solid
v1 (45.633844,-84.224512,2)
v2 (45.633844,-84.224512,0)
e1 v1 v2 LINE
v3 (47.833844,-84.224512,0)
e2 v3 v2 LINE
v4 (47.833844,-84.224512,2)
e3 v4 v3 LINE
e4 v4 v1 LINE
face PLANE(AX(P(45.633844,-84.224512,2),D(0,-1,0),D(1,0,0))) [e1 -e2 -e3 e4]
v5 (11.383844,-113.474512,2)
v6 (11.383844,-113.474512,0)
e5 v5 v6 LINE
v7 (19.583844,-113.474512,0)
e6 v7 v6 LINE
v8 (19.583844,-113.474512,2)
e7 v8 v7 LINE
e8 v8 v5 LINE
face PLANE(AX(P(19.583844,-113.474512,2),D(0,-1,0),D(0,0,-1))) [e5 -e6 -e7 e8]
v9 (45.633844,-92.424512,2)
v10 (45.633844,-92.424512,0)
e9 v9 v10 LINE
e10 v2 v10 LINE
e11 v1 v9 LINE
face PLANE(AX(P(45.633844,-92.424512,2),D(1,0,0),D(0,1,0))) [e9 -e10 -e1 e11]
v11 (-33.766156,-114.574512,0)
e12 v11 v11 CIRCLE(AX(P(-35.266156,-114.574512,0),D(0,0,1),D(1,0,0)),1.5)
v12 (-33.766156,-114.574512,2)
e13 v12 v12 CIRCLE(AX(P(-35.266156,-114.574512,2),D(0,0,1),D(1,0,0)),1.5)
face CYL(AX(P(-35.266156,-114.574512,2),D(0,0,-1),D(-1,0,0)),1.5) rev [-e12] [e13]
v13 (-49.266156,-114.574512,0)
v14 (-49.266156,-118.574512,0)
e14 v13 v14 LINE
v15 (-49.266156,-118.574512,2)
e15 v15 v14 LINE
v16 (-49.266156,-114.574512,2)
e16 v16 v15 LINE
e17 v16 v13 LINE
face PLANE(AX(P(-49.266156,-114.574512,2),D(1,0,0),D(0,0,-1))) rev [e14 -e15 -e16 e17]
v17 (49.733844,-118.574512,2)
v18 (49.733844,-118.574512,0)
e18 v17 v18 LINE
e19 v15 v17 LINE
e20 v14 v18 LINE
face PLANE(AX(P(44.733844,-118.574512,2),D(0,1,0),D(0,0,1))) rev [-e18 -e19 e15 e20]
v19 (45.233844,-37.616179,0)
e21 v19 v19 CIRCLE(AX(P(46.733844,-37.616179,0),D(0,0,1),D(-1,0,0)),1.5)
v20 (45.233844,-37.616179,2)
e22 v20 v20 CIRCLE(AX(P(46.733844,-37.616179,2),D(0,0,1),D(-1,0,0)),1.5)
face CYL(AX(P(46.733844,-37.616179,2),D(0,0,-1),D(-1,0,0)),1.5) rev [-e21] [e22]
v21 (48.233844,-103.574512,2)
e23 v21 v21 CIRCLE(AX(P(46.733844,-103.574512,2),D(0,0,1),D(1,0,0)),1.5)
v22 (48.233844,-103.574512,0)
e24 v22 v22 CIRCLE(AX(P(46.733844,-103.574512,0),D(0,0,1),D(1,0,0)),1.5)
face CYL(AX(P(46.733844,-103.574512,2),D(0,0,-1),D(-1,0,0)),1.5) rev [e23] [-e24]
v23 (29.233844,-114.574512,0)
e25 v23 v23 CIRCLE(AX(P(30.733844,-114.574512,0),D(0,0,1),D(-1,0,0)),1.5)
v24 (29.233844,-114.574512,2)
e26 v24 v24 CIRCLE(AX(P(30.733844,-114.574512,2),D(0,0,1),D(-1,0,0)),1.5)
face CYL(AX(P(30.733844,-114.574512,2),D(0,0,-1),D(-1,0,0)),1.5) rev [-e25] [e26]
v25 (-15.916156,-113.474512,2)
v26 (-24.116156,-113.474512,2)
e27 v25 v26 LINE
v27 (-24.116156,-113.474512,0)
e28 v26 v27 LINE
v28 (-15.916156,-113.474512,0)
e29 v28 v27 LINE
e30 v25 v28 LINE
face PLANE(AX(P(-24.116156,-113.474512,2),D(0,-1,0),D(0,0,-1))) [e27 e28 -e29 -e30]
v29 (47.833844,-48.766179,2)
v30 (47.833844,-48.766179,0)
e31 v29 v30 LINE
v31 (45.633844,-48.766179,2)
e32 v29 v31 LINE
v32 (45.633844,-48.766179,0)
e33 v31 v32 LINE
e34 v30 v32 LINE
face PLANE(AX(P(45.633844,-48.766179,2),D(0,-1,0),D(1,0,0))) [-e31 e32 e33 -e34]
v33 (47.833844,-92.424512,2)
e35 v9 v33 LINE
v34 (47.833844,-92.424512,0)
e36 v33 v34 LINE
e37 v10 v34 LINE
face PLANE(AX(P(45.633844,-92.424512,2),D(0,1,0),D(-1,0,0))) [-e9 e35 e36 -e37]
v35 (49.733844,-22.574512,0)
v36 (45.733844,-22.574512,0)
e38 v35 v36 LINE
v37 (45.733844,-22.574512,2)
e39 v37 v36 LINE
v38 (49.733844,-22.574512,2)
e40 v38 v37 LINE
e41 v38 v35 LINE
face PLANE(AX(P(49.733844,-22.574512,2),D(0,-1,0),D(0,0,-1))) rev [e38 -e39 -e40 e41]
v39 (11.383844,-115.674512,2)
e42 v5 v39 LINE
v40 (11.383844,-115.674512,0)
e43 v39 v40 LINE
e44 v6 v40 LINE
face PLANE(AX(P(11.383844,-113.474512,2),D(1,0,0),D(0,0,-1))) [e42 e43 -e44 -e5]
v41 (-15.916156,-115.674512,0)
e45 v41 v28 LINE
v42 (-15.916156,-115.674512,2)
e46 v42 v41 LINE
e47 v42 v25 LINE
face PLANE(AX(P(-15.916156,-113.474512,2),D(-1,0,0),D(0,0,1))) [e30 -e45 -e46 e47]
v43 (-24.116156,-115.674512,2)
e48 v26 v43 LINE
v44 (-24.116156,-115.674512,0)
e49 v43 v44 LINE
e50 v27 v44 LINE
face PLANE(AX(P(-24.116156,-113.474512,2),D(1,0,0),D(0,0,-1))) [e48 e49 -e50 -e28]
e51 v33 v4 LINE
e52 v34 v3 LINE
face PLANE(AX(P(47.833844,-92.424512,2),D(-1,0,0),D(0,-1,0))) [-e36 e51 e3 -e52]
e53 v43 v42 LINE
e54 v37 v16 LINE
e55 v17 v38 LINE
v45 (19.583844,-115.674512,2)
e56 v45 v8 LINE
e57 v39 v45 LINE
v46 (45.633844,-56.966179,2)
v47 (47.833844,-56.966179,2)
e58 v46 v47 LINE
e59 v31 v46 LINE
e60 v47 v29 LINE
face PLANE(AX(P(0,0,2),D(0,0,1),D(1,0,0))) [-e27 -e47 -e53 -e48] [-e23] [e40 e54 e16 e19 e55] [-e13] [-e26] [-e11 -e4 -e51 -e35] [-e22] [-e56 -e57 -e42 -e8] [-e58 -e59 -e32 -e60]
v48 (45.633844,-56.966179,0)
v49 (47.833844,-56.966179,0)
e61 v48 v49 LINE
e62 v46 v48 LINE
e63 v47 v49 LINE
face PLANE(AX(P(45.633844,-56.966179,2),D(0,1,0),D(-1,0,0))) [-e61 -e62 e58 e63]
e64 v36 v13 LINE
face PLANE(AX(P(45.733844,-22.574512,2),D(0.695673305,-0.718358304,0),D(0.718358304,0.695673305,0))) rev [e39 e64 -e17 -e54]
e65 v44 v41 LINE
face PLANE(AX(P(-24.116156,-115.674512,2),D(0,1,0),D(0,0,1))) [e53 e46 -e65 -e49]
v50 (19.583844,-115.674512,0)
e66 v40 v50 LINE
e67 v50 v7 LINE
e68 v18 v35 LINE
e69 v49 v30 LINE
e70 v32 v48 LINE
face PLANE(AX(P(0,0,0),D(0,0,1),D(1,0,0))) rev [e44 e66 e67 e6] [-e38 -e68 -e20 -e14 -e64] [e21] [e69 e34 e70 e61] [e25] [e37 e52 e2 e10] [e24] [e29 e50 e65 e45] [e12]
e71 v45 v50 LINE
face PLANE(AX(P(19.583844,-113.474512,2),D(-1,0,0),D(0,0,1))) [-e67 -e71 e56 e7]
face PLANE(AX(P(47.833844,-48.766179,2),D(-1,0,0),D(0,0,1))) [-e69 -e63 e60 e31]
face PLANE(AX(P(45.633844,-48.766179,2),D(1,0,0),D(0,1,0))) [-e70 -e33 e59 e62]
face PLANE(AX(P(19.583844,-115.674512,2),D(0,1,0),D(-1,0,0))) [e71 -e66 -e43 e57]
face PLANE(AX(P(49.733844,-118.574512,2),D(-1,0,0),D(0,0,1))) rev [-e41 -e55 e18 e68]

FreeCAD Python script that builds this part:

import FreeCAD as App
import Part
import Sketcher

doc = App.newDocument("Part")
params = doc.addObject("Spreadsheet::Sheet", "Params")
for row, (alias, value) in enumerate([
    ("sketch1_diameter", "3 mm"),
    ("sketch1_width", "4 mm"),
    ("sketch1_width2", "99 mm"),
    ("sketch1_height", "96 mm"),
    ("sketch1_width3", "8.2 mm"),
    ("pad1_length", "2 mm"),
], start=1):
    params.set(f"A{row}", alias)
    params.set(f"B{row}", "=" + value)
    params.setAlias(f"B{row}", alias)

body = doc.addObject("PartDesign::Body", "Body")

sketch1 = body.newObject("Sketcher::SketchObject", "Sketch")
sketch1.AttachmentSupport = (doc.getObject("XY_Plane"), [""])
sketch1.MapMode = "FlatFace"
sketch1.addGeometry([
    Part.LineSegment(App.Vector(49.7, -118.6, 0), App.Vector(49.7, -22.6, 0)),
    Part.LineSegment(App.Vector(49.7, -22.6, 0), App.Vector(45.7, -22.6, 0)),
    Part.LineSegment(App.Vector(45.7, -22.6, 0), App.Vector(-49.3, -114.6, 0)),
    Part.LineSegment(App.Vector(-49.3, -114.6, 0), App.Vector(-49.3, -118.6, 0)),
    Part.LineSegment(App.Vector(-49.3, -118.6, 0), App.Vector(49.7, -118.6, 0)),
    Part.Circle(App.Vector(-35.3, -114.6, 0), App.Vector(0, 0, 1), 1.5),
    Part.LineSegment(App.Vector(-15.9, -115.7, 0), App.Vector(-24.1, -115.7, 0)),
    Part.LineSegment(App.Vector(-24.1, -115.7, 0), App.Vector(-24.1, -113.5, 0)),
    Part.LineSegment(App.Vector(-24.1, -113.5, 0), App.Vector(-15.9, -113.5, 0)),
    Part.LineSegment(App.Vector(-15.9, -113.5, 0), App.Vector(-15.9, -115.7, 0)),
    Part.LineSegment(App.Vector(19.6, -115.7, 0), App.Vector(11.4, -115.7, 0)),
    Part.LineSegment(App.Vector(11.4, -115.7, 0), App.Vector(11.4, -113.5, 0)),
    Part.LineSegment(App.Vector(11.4, -113.5, 0), App.Vector(19.6, -113.5, 0)),
    Part.LineSegment(App.Vector(19.6, -113.5, 0), App.Vector(19.6, -115.7, 0)),
    Part.Circle(App.Vector(30.7, -114.6, 0), App.Vector(0, 0, 1), 1.5),
    Part.Circle(App.Vector(46.7, -103.6, 0), App.Vector(0, 0, 1), 1.5),
    Part.LineSegment(App.Vector(47.8, -92.4, 0), App.Vector(45.6, -92.4, 0)),
    Part.LineSegment(App.Vector(45.6, -92.4, 0), App.Vector(45.6, -84.2, 0)),
    Part.LineSegment(App.Vector(45.6, -84.2, 0), App.Vector(47.8, -84.2, 0)),
    Part.LineSegment(App.Vector(47.8, -84.2, 0), App.Vector(47.8, -92.4, 0)),
    Part.LineSegment(App.Vector(47.8, -57, 0), App.Vector(45.6, -57, 0)),
    Part.LineSegment(App.Vector(45.6, -57, 0), App.Vector(45.6, -48.8, 0)),
    Part.LineSegment(App.Vector(45.6, -48.8, 0), App.Vector(47.8, -48.8, 0)),
    Part.LineSegment(App.Vector(47.8, -48.8, 0), App.Vector(47.8, -57, 0)),
    Part.Circle(App.Vector(46.7, -37.6, 0), App.Vector(0, 0, 1), 1.5),
], False)
sketch1.addConstraint([
    Sketcher.Constraint("Coincident", 0, 2, 1, 1),
    Sketcher.Constraint("Coincident", 1, 2, 2, 1),
    Sketcher.Constraint("Coincident", 2, 2, 3, 1),
    Sketcher.Constraint("Coincident", 3, 2, 4, 1),
    Sketcher.Constraint("Coincident", 4, 2, 0, 1),
    Sketcher.Constraint("Coincident", 6, 2, 7, 1),
    Sketcher.Constraint("Coincident", 7, 2, 8, 1),
    Sketcher.Constraint("Coincident", 8, 2, 9, 1),
    Sketcher.Constraint("Coincident", 9, 2, 6, 1),
    Sketcher.Constraint("Coincident", 10, 2, 11, 1),
    Sketcher.Constraint("Coincident", 11, 2, 12, 1),
    Sketcher.Constraint("Coincident", 12, 2, 13, 1),
    Sketcher.Constraint("Coincident", 13, 2, 10, 1),
    Sketcher.Constraint("Coincident", 16, 2, 17, 1),
    Sketcher.Constraint("Coincident", 17, 2, 18, 1),
    Sketcher.Constraint("Coincident", 18, 2, 19, 1),
    Sketcher.Constraint("Coincident", 19, 2, 16, 1),
    Sketcher.Constraint("Coincident", 20, 2, 21, 1),
    Sketcher.Constraint("Coincident", 21, 2, 22, 1),
    Sketcher.Constraint("Coincident", 22, 2, 23, 1),
    Sketcher.Constraint("Coincident", 23, 2, 20, 1),
    Sketcher.Constraint("Vertical", 0),
    Sketcher.Constraint("Horizontal", 1),
    Sketcher.Constraint("Vertical", 3),
    Sketcher.Constraint("Horizontal", 4),
    Sketcher.Constraint("Horizontal", 6),
    Sketcher.Constraint("Vertical", 7),
    Sketcher.Constraint("Horizontal", 8),
    Sketcher.Constraint("Vertical", 9),
    Sketcher.Constraint("Horizontal", 10),
    Sketcher.Constraint("Vertical", 11),
    Sketcher.Constraint("Horizontal", 12),
    Sketcher.Constraint("Vertical", 13),
    Sketcher.Constraint("Horizontal", 16),
    Sketcher.Constraint("Vertical", 17),
    Sketcher.Constraint("Horizontal", 18),
    Sketcher.Constraint("Vertical", 19),
    Sketcher.Constraint("Horizontal", 20),
    Sketcher.Constraint("Vertical", 21),
    Sketcher.Constraint("Horizontal", 22),
    Sketcher.Constraint("Vertical", 23),
    Sketcher.Constraint("Equal", 5, 14),
    Sketcher.Constraint("Equal", 14, 15),
    Sketcher.Constraint("Equal", 15, 24),
    Sketcher.Constraint("Horizontal", 5, 3, 14, 3),
    Sketcher.Constraint("Horizontal", 14, 3, 2, 2),
    Sketcher.Constraint("Horizontal", 9, 2, 10, 2),
    Sketcher.Constraint("Horizontal", 8, 2, 11, 2),
    Sketcher.Constraint("Vertical", 15, 3, 24, 3),
    Sketcher.Constraint("Vertical", 17, 2, 20, 2),
    Sketcher.Constraint("Vertical", 19, 2, 22, 2),
    Sketcher.Constraint("Equal", 8, 10),
    Sketcher.Constraint("Equal", 1, 3),
    Sketcher.Constraint("Equal", 22, 7),
    Sketcher.Constraint("Equal", 12, 17),
    Sketcher.Constraint("Equal", 19, 21),
    Sketcher.Constraint("Diameter", 5, 3.0),
    Sketcher.Constraint("DistanceX", 1, 2, 1, 1, 4.0),
    Sketcher.Constraint("DistanceX", 4, 1, 4, 2, 99.0),
    Sketcher.Constraint("DistanceY", 0, 1, 0, 2, 96.0),
    Sketcher.Constraint("DistanceX", 6, 2, 6, 1, 8.2),
    Sketcher.Constraint("DistanceX", 16, 2, 16, 1, 2.2),
    Sketcher.Constraint("DistanceX", 5, 3, 14, 3, 66.0),
    Sketcher.Constraint("DistanceX", 14, 3, 15, 3, 16.0),
    Sketcher.Constraint("DistanceY", 14, 3, 15, 3, 11.0),
    Sketcher.Constraint("DistanceX", 24, 3, 0, 2, 3.0),
    Sketcher.Constraint("DistanceY", 6, 2, 5, 3, 1.1),
    Sketcher.Constraint("DistanceX", 9, 2, 10, 2, 27.3),
    Sketcher.Constraint("DistanceX", 16, 2, 15, 3, 1.1),
    Sketcher.Constraint("DistanceX", 5, 3, 6, 2, 11.15),
    Sketcher.Constraint("DistanceY", 15, 3, 16, 2, 11.15),
    Sketcher.Constraint("DistanceY", 20, 2, 24, 3, 19.35),
    Sketcher.Constraint("DistanceY", 24, 3, -1, 1, 37.616179),
    Sketcher.Constraint("DistanceX", 5, 3, -1, 1, 35.266156),
    Sketcher.Constraint("DistanceY", 5, 3, -1, 1, 114.574512),
])
sketch1.setExpression("Constraints[56]", "Params.sketch1_diameter")
sketch1.setExpression("Constraints[57]", "Params.sketch1_width")
sketch1.setExpression("Constraints[58]", "Params.sketch1_width2")
sketch1.setExpression("Constraints[59]", "Params.sketch1_height")
sketch1.setExpression("Constraints[60]", "Params.sketch1_width3")
pad1 = body.newObject("PartDesign::Pad", "Pad")
pad1.Profile = sketch1
pad1.setExpression("Length", "Params.pad1_length")

doc.recompute()
